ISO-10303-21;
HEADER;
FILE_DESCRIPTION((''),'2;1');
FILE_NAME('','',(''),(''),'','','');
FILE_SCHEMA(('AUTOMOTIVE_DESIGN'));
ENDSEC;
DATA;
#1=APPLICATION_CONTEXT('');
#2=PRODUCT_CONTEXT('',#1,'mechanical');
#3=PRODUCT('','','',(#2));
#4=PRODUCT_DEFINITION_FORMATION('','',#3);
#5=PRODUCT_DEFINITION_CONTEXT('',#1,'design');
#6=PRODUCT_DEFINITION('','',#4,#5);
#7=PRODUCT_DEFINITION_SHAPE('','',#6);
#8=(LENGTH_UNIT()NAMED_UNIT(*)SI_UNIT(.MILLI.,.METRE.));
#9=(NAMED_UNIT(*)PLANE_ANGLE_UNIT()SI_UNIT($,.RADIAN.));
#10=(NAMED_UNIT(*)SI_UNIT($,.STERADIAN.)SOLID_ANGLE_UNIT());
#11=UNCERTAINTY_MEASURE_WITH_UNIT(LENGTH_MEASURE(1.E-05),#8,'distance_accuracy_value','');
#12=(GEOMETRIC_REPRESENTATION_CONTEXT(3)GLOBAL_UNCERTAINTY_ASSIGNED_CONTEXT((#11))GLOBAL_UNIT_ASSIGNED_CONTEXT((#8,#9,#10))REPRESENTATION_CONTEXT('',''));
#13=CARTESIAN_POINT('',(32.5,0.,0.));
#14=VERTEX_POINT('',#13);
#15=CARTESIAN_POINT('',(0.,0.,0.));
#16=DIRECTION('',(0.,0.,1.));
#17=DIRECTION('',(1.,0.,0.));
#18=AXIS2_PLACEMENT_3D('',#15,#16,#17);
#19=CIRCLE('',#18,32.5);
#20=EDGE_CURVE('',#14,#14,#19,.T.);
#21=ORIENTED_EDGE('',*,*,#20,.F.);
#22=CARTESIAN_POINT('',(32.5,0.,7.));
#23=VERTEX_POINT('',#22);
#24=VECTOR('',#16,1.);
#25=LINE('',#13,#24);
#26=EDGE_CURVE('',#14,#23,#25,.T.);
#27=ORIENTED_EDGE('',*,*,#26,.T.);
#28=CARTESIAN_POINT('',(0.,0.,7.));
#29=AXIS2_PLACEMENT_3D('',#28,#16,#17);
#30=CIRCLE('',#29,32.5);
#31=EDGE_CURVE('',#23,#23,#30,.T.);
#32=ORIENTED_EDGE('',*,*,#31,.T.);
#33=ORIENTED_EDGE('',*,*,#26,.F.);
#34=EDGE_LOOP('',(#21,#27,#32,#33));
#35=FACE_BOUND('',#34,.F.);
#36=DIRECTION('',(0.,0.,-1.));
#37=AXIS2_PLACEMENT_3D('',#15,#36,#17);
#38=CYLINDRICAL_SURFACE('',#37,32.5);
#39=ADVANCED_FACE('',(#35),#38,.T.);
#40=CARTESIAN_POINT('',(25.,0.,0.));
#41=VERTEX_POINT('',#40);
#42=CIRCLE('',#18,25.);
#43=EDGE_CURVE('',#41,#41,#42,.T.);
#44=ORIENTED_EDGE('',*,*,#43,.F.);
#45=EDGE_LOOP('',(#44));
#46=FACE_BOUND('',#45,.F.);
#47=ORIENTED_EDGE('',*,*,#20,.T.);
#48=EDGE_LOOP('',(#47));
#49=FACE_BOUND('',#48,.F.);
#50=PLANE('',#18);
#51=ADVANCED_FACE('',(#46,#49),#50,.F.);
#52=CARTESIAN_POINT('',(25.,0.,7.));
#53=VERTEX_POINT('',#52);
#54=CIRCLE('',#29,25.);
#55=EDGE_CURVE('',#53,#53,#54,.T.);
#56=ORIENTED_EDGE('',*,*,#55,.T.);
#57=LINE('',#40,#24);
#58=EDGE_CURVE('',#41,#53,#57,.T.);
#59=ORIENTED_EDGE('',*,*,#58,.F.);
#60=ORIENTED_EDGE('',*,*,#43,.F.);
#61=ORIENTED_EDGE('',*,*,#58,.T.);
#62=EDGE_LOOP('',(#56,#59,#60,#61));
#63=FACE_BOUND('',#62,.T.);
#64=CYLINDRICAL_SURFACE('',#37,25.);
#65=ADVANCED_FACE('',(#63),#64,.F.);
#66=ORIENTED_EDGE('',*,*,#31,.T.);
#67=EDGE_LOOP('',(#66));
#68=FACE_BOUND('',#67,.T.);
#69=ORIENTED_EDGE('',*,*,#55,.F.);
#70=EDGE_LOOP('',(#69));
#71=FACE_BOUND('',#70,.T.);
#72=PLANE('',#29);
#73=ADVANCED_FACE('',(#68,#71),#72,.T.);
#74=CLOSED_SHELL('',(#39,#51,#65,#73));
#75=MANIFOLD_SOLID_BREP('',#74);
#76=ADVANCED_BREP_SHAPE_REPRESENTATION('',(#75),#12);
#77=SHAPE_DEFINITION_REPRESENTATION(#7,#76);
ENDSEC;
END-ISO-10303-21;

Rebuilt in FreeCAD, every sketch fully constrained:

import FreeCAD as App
import Part
import Sketcher

V = App.Vector
Q = App.Units.Quantity

doc = App.newDocument("Part")
body = doc.addObject("PartDesign::Body", "Body")

sketch1 = body.newObject("Sketcher::SketchObject", "Sketch")
sketch1.AttachmentSupport = (doc.getObject("XY_Plane"), [""])
sketch1.MapMode = "FlatFace"
sketch1.addGeometry([
    Part.Circle(V(0, 0, 0), V(0, 0, 1), 32),
    Part.Circle(V(0, 0, 0), V(0, 0, 1), 25),
], False)
sketch1.addConstraint([
    Sketcher.Constraint("Coincident", 0, 3, -1, 1),
    Sketcher.Constraint("Coincident", 1, 3, -1, 1),
    Sketcher.Constraint("Diameter", 0, Q("65 mm")),
    Sketcher.Constraint("Diameter", 1, Q("50 mm")),
])
pad1 = body.newObject("PartDesign::Pad", "Pad")
pad1.Profile = sketch1
pad1.Length = 7

doc.recompute()
